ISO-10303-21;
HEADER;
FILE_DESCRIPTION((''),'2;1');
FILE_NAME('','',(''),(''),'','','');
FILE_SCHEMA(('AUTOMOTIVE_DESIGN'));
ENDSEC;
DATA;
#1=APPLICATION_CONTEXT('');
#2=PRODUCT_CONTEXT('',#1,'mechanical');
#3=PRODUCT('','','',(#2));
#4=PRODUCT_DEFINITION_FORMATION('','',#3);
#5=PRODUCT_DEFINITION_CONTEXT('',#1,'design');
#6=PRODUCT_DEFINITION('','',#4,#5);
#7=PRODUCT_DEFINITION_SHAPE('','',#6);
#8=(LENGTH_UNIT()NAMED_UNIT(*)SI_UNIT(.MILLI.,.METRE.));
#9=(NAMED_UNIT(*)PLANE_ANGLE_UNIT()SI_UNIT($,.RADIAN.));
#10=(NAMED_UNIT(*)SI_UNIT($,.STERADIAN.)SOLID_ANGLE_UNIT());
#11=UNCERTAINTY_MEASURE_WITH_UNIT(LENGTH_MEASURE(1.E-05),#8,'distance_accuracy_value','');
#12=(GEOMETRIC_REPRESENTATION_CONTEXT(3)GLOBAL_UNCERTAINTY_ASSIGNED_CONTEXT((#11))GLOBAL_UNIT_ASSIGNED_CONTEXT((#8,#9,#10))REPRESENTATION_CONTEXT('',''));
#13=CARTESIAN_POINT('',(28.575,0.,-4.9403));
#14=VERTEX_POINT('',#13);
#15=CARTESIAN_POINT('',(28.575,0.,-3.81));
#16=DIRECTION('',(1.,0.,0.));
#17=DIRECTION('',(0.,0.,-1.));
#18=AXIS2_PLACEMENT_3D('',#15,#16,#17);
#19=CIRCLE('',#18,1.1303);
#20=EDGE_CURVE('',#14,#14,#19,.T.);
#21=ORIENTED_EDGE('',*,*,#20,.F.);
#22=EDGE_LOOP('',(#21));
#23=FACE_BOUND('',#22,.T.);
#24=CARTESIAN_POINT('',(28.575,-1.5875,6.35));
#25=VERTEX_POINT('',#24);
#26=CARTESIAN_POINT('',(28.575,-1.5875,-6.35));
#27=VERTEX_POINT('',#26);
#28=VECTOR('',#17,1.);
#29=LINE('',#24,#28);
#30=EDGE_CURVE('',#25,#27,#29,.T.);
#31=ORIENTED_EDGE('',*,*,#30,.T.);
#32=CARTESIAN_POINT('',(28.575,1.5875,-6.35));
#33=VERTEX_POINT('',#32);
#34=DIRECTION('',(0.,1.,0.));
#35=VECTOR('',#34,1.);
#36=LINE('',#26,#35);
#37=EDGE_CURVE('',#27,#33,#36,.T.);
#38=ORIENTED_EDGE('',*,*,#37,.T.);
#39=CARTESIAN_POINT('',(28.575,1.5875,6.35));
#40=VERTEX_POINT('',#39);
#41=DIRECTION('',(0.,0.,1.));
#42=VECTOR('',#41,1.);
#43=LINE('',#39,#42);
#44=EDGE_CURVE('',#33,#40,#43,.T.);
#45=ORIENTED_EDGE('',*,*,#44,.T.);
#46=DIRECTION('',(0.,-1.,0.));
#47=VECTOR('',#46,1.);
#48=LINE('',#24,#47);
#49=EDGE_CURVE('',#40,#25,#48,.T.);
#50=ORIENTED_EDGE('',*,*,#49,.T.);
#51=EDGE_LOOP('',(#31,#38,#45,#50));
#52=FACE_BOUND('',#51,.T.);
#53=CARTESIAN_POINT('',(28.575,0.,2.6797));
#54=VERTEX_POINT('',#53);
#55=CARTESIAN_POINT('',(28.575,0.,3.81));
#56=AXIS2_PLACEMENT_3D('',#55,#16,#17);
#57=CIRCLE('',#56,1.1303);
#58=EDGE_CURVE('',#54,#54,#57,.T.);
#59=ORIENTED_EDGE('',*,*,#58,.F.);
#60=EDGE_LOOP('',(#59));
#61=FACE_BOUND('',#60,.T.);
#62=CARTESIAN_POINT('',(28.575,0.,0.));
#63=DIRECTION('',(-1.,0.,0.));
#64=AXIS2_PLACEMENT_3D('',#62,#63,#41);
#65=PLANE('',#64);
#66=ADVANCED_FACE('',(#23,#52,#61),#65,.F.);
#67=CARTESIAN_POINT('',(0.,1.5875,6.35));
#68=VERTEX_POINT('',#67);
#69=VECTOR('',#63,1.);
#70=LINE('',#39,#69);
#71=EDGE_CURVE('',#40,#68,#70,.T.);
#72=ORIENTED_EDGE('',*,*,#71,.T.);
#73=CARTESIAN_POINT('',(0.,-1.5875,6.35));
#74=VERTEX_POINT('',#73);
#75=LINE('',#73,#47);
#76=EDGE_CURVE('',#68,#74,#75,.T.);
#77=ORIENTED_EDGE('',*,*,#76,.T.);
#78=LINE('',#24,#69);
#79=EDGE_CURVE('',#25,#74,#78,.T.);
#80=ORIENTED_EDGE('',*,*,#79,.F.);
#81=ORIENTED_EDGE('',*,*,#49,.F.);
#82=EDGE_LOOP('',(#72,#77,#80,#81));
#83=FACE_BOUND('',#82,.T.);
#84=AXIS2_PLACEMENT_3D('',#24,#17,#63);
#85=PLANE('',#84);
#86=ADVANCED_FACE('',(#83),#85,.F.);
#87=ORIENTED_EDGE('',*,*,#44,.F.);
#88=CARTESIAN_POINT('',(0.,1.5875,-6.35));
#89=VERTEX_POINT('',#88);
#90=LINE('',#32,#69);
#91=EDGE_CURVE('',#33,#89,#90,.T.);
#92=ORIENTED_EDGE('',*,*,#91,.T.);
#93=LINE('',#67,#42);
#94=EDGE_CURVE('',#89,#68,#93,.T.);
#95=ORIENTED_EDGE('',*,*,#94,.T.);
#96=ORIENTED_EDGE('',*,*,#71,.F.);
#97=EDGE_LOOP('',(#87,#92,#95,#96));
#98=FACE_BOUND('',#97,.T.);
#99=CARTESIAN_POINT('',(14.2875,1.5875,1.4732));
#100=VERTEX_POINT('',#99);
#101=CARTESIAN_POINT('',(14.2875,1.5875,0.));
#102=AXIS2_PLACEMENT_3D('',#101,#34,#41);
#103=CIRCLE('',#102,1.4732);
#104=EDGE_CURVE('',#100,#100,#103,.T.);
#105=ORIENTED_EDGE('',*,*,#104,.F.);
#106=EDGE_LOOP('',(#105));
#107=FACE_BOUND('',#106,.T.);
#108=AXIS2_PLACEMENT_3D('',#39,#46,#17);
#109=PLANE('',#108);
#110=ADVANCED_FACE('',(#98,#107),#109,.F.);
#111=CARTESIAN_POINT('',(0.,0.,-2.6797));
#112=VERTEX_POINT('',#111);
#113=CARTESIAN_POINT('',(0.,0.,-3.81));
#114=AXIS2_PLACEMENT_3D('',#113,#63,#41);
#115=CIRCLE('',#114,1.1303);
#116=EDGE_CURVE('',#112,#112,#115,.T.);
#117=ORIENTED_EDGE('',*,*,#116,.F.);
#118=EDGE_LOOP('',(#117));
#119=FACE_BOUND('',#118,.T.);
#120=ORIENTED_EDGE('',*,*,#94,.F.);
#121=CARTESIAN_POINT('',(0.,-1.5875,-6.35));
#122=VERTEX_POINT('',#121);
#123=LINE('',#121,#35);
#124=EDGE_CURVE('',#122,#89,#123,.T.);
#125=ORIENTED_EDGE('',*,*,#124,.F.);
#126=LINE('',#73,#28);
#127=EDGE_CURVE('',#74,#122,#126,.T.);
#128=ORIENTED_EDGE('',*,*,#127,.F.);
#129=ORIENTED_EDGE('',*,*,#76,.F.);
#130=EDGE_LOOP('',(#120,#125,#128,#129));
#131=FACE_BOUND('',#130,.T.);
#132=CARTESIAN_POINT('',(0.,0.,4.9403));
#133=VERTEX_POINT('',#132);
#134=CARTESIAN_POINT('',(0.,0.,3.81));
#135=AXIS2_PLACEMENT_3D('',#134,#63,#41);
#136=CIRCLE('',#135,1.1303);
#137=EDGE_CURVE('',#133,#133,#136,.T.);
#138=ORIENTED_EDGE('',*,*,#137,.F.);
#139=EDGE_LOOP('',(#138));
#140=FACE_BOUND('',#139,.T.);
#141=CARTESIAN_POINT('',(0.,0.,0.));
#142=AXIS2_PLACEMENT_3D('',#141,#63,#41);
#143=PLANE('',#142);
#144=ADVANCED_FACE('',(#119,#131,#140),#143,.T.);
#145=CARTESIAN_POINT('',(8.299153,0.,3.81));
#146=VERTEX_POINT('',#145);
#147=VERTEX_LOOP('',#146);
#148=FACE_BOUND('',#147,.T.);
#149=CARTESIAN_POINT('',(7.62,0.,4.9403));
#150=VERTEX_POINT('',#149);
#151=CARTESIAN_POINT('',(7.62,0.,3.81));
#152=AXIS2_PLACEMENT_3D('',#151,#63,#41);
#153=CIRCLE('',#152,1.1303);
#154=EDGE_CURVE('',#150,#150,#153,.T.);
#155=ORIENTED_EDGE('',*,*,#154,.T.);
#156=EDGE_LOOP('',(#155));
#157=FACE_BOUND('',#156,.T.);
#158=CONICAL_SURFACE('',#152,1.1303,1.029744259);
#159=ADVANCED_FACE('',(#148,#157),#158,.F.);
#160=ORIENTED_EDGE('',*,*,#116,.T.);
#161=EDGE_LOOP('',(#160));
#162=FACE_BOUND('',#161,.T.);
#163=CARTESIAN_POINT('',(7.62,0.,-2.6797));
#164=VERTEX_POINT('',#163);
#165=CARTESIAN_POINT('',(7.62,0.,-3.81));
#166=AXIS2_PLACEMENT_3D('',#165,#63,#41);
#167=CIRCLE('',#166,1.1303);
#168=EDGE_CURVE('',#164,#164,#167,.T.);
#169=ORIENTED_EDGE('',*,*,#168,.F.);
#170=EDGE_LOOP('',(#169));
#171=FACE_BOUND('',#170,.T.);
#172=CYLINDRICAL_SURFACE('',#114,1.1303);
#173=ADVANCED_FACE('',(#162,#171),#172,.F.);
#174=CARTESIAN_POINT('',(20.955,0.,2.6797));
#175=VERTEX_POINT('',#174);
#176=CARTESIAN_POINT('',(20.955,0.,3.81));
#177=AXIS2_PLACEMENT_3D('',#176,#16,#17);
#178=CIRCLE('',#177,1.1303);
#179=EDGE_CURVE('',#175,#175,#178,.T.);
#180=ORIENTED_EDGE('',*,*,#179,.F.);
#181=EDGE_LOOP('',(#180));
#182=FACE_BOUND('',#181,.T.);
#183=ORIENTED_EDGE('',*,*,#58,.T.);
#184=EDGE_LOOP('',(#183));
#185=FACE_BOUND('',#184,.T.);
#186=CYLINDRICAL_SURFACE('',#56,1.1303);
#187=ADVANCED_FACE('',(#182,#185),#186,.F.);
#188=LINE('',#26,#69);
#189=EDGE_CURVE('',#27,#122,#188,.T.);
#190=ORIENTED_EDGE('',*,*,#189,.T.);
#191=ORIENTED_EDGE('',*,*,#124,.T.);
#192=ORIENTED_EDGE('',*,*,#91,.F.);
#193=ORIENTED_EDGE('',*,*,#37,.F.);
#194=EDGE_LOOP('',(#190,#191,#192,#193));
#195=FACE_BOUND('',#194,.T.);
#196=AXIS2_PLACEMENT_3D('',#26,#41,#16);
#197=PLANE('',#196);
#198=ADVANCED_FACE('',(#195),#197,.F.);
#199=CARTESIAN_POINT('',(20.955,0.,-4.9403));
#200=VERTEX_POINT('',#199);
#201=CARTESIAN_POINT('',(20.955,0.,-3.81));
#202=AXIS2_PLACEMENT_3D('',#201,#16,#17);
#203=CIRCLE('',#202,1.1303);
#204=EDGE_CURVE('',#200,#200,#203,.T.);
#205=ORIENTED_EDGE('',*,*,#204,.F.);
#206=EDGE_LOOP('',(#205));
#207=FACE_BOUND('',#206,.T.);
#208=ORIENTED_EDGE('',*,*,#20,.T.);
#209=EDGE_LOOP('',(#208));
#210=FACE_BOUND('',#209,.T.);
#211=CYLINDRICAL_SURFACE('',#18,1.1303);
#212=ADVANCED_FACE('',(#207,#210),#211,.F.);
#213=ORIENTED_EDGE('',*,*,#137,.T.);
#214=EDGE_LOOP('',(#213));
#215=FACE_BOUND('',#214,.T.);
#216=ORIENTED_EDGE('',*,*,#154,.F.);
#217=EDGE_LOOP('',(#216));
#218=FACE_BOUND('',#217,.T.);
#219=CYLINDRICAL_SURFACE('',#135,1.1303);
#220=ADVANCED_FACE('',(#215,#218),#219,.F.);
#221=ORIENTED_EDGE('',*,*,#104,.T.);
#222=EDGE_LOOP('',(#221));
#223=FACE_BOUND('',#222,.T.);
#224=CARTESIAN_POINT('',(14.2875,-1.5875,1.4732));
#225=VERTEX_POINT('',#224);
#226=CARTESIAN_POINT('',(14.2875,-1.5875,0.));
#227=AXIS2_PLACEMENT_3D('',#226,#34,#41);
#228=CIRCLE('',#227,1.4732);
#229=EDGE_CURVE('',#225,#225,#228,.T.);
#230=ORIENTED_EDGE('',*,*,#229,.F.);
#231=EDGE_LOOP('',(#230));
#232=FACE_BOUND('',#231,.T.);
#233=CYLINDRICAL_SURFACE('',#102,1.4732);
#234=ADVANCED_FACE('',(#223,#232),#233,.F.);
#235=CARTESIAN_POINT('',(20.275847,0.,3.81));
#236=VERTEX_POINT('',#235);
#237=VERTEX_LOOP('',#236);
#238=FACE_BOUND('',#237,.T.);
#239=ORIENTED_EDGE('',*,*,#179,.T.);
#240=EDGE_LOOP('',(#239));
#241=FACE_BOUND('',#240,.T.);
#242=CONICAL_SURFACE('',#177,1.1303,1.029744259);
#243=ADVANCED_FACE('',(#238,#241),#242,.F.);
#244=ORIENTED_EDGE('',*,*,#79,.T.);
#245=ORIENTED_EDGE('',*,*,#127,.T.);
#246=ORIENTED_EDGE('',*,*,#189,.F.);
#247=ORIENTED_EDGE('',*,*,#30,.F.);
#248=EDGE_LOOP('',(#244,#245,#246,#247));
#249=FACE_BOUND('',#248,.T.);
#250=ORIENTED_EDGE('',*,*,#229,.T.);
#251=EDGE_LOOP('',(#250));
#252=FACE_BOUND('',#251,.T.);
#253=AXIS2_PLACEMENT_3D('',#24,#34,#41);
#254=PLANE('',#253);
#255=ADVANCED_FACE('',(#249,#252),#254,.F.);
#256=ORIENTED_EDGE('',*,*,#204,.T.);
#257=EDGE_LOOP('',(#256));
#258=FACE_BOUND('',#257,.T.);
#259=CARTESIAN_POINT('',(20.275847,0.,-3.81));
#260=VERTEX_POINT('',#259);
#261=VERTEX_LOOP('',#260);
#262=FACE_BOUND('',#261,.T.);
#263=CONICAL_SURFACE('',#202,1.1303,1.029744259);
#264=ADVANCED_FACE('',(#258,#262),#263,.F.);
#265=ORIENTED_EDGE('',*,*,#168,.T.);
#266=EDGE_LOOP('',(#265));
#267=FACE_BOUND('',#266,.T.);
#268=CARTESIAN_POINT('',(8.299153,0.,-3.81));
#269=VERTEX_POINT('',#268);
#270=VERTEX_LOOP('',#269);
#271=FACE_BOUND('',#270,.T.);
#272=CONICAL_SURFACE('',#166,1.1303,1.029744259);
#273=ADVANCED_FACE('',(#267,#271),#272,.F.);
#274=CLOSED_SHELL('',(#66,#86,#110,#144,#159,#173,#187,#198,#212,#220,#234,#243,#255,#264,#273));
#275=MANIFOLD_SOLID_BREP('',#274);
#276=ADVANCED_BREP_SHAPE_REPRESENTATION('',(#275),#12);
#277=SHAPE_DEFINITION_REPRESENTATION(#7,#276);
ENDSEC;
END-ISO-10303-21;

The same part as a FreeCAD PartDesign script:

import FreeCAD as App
import Part
import Sketcher
from FreeCAD import Vector
Q = App.Units.Quantity

doc = App.newDocument("Part")
body = doc.addObject("PartDesign::Body", "Body")

sketch1 = doc.addObject("Sketcher::SketchObject", "Sketch")
body.addObject(sketch1)
sketch1.AttachmentSupport = (doc.YZ_Plane, [""])
sketch1.MapMode = "FlatFace"
sketch1.addGeometry(Part.LineSegment(Vector(1.6, 6.3, 0), Vector(-1.6, 6.3, 0)), False)
sketch1.addGeometry(Part.LineSegment(Vector(-1.6, 6.3, 0), Vector(-1.6, -6.3, 0)), False)
sketch1.addGeometry(Part.LineSegment(Vector(-1.6, -6.3, 0), Vector(1.6, -6.3, 0)), False)
sketch1.addGeometry(Part.LineSegment(Vector(1.6, -6.3, 0), Vector(1.6, 6.3, 0)), False)
sketch1.addConstraint(Sketcher.Constraint("Coincident", 0, 2, 1, 1))
sketch1.addConstraint(Sketcher.Constraint("Coincident", 1, 2, 2, 1))
sketch1.addConstraint(Sketcher.Constraint("Coincident", 2, 2, 3, 1))
sketch1.addConstraint(Sketcher.Constraint("Coincident", 3, 2, 0, 1))
sketch1.addConstraint(Sketcher.Constraint("Horizontal", 0))
sketch1.addConstraint(Sketcher.Constraint("Vertical", 1))
sketch1.addConstraint(Sketcher.Constraint("Horizontal", 2))
sketch1.addConstraint(Sketcher.Constraint("Vertical", 3))
sketch1.addConstraint(Sketcher.Constraint("Symmetric", 0, 2, 2, 2, -1, 1))
sketch1.addConstraint(Sketcher.Constraint("DistanceY", 1, 2, 1, 1, Q("0.5 in")))
sketch1.addConstraint(Sketcher.Constraint("DistanceX", 0, 2, 0, 1, Q("0.125 in")))
pad1 = doc.addObject("PartDesign::Pad", "Pad")
body.addObject(pad1)
pad1.Profile = sketch1
pad1.Length = Q("1.125 in")

sketch2 = doc.addObject("Sketcher::SketchObject", "Sketch001")
body.addObject(sketch2)
sketch2.AttachmentSupport = (doc.XZ_Plane, [""])
sketch2.MapMode = "FlatFace"
sketch2.AttachmentOffset = App.Placement(Vector(0, 0, -0.0625 * 25.4), App.Rotation())
sketch2.addGeometry(Part.Circle(Vector(14.3, 0, 0), Vector(0, 0, 1), 1.5), False)
sketch2.addConstraint(Sketcher.Constraint("PointOnObject", 0, 3, -1))
sketch2.addConstraint(Sketcher.Constraint("Diameter", 0, Q("0.116 in")))
sketch2.addConstraint(Sketcher.Constraint("DistanceX", -1, 1, 0, 3, Q("0.5625 in")))
doc.recompute()
hole = doc.addObject("PartDesign::Hole", "Hole")
body.addObject(hole)
hole.Profile = sketch2
hole.ThreadType = "None"
hole.Diameter = Q("0.116 in")
hole.DepthType = "Dimension"
hole.Depth = Q("0.13 in")
hole.DrillPoint = "Angled"
hole.DrillPointAngle = 118
hole.Reversed = True

sketch3 = doc.addObject("Sketcher::SketchObject", "Sketch002")
body.addObject(sketch3)
sketch3.AttachmentSupport = (doc.YZ_Plane, [""])
sketch3.MapMode = "FlatFace"
sketch3.addGeometry(Part.Circle(Vector(0, -3.8, 0), Vector(0, 0, 1), 1.1), False)
sketch3.addGeometry(Part.Circle(Vector(0, 3.8, 0), Vector(0, 0, 1), 1.1), False)
sketch3.addConstraint(Sketcher.Constraint("Equal", 0, 1))
sketch3.addConstraint(Sketcher.Constraint("Symmetric", 0, 3, 1, 3, -1, 1))
sketch3.addConstraint(Sketcher.Constraint("PointOnObject", 0, 3, -2))
sketch3.addConstraint(Sketcher.Constraint("Diameter", 0, Q("0.089 in")))
sketch3.addConstraint(Sketcher.Constraint("DistanceY", 0, 3, 1, 3, Q("0.3 in")))
doc.recompute()
hole2 = doc.addObject("PartDesign::Hole", "Hole001")
body.addObject(hole2)
hole2.Profile = sketch3
hole2.ThreadType = "None"
hole2.Diameter = Q("0.089 in")
hole2.DepthType = "Dimension"
hole2.Depth = Q("0.3 in")
hole2.DrillPoint = "Angled"
hole2.DrillPointAngle = 118
hole2.Reversed = True

sketch4 = doc.addObject("Sketcher::SketchObject", "Sketch003")
body.addObject(sketch4)
sketch4.AttachmentSupport = (doc.YZ_Plane, [""])
sketch4.MapMode = "FlatFace"
sketch4.AttachmentOffset = App.Placement(Vector(0, 0, 1.125 * 25.4), App.Rotation())
sketch4.addGeometry(Part.Circle(Vector(0, 3.8, 0), Vector(0, 0, 1), 1.1), False)
sketch4.addGeometry(Part.Circle(Vector(0, -3.8, 0), Vector(0, 0, 1), 1.1), False)
sketch4.addConstraint(Sketcher.Constraint("Equal", 0, 1))
sketch4.addConstraint(Sketcher.Constraint("Symmetric", 0, 3, 1, 3, -1, 1))
sketch4.addConstraint(Sketcher.Constraint("PointOnObject", 0, 3, -2))
sketch4.addConstraint(Sketcher.Constraint("Diameter", 0, Q("0.089 in")))
sketch4.addConstraint(Sketcher.Constraint("DistanceY", 1, 3, 0, 3, Q("0.3 in")))
doc.recompute()
hole3 = doc.addObject("PartDesign::Hole", "Hole002")
body.addObject(hole3)
hole3.Profile = sketch4
hole3.ThreadType = "None"
hole3.Diameter = Q("0.089 in")
hole3.DepthType = "Dimension"
hole3.Depth = Q("0.3 in")
hole3.DrillPoint = "Angled"
hole3.DrillPointAngle = 118

doc.recompute()
